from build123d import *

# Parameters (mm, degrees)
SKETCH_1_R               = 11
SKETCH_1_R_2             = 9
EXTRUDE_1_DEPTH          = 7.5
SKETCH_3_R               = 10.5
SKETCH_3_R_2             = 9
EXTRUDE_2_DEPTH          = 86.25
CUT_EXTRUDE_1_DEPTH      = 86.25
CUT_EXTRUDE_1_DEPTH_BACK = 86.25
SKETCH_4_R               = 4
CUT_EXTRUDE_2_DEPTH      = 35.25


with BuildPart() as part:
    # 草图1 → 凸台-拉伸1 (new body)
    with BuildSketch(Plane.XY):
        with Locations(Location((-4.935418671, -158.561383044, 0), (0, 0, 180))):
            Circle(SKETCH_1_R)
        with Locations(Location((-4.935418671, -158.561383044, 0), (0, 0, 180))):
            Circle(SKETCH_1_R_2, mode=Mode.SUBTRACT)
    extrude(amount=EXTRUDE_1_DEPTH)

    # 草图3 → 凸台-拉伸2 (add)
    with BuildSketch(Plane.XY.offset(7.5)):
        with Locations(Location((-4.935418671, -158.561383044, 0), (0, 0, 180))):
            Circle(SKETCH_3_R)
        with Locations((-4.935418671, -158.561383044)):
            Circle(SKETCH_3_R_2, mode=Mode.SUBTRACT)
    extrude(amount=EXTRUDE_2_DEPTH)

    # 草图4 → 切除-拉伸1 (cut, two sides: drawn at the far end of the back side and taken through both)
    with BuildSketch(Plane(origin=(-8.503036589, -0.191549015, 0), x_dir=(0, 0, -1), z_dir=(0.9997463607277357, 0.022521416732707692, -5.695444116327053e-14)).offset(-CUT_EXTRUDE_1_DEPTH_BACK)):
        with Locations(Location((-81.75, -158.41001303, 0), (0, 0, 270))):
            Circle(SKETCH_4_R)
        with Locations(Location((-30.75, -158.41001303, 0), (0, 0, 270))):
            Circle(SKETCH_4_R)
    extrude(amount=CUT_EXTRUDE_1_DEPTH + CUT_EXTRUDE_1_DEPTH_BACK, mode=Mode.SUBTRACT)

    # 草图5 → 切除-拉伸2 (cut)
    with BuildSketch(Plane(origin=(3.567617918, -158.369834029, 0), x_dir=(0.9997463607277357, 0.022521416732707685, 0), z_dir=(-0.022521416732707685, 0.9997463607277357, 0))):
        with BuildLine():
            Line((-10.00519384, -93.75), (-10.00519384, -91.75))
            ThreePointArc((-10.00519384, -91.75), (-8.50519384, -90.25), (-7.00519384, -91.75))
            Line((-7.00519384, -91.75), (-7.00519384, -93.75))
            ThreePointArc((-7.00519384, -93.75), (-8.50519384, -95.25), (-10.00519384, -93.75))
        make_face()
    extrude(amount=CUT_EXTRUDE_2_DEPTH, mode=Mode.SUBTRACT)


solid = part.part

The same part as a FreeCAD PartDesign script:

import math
import FreeCAD as App
import Part
import Sketcher

V = App.Vector
Q = App.Units.Quantity

doc = App.newDocument("Part")
params = doc.addObject("Spreadsheet::Sheet", "Params")
for row, (alias, value) in enumerate([
    ("sketch1_diameter", "22 mm"),
    ("sketch1_diameter2", "18 mm"),
    ("pad1_length", "7.5 mm"),
    ("sketch2_diameter", "21 mm"),
    ("sketch2_diameter2", "18 mm"),
    ("pad2_length", "86.25 mm"),
    ("sketch3_diameter", "8 mm"),
    ("sketch4_radius", "1.5 mm"),
    ("sketch4_height", "2 mm"),
    ("pocket2_length", "35.25 mm"),
], start=1):
    params.set(f"A{row}", alias)
    params.set(f"B{row}", "=" + value)
    params.setAlias(f"B{row}", alias)

body = doc.addObject("PartDesign::Body", "Body")

# Sketch on XY plane
sketch1 = body.newObject("Sketcher::SketchObject", "Sketch")
sketch1.AttachmentSupport = (doc.getObject("XY_Plane"), [""])
sketch1.MapMode = "FlatFace"
sketch1.addGeometry([
    Part.Circle(V(-4.935419, -158.561383, 0), V(0, 0, 1), 11),
    Part.Circle(V(-4.935419, -158.561383, 0), V(0, 0, 1), 9),
], False)
sketch1.addConstraint([
    Sketcher.Constraint("Coincident", 1, 3, 0, 3),
    Sketcher.Constraint("Diameter", 0, Q("22 mm")),
    Sketcher.Constraint("Diameter", 1, Q("18 mm")),
    Sketcher.Constraint("DistanceX", 0, 3, -1, 1, Q("4.935419 mm")),
    Sketcher.Constraint("DistanceY", 0, 3, -1, 1, Q("158.561383 mm")),
])
sketch1.setExpression("Constraints[1]", "Params.sketch1_diameter")
sketch1.setExpression("Constraints[2]", "Params.sketch1_diameter2")
pad1 = body.newObject("PartDesign::Pad", "Pad")
pad1.Profile = sketch1
pad1.setExpression("Length", "Params.pad1_length")

# Sketch on XY plane
sketch2 = body.newObject("Sketcher::SketchObject", "Sketch001")
sketch2.AttachmentSupport = (doc.getObject("XY_Plane"), [""])
sketch2.MapMode = "FlatFace"
sketch2.AttachmentOffset = App.Placement(V(0, 0, 7.5), App.Rotation())
sketch2.addGeometry([
    Part.Circle(V(-4.935419, -158.561383, 0), V(0, 0, 1), 10.5),
    Part.Circle(V(-4.935419, -158.561383, 0), V(0, 0, 1), 9),
], False)
sketch2.addConstraint([
    Sketcher.Constraint("Coincident", 1, 3, 0, 3),
    Sketcher.Constraint("Diameter", 0, Q("21 mm")),
    Sketcher.Constraint("Diameter", 1, Q("18 mm")),
    Sketcher.Constraint("DistanceX", 0, 3, -1, 1, Q("4.935419 mm")),
    Sketcher.Constraint("DistanceY", 0, 3, -1, 1, Q("158.561383 mm")),
])
sketch2.setExpression("Constraints[1]", "Params.sketch2_diameter")
sketch2.setExpression("Constraints[2]", "Params.sketch2_diameter2")
pad2 = body.newObject("PartDesign::Pad", "Pad001")
pad2.Profile = sketch2
pad2.setExpression("Length", "Params.pad2_length")

# Sketch on an angled plane
sketch3 = body.newObject("Sketcher::SketchObject", "Sketch002")
sketch3.Placement = App.Placement(V(-8.503037, -0.191549, 0), App.Rotation(V(0, 0, -1), V(-0.022521417, 0.999746361, 0), V(0.999746361, 0.022521417, 0), "ZXY"))
sketch3.addGeometry([
    Part.Circle(V(-81.75, -158.410013, 0), V(0, 0, 1), 4),
    Part.Circle(V(-30.75, -158.410013, 0), V(0, 0, 1), 4),
], False)
sketch3.addConstraint([
    Sketcher.Constraint("Equal", 0, 1),
    Sketcher.Constraint("Horizontal", 0, 3, 1, 3),
    Sketcher.Constraint("Diameter", 0, Q("8 mm")),
    Sketcher.Constraint("DistanceX", 0, 3, 1, 3, Q("51 mm")),
    Sketcher.Constraint("DistanceX", 0, 3, -1, 1, Q("81.75 mm")),
    Sketcher.Constraint("DistanceY", 0, 3, -1, 1, Q("158.410013 mm")),
])
sketch3.setExpression("Constraints[2]", "Params.sketch3_diameter")
pocket1 = body.newObject("PartDesign::Pocket", "Pocket")
pocket1.Profile = sketch3
pocket1.Type = "ThroughAll"
pocket1.Midplane = True

# Sketch on an angled plane
sketch4 = body.newObject("Sketcher::SketchObject", "Sketch003")
sketch4.Placement = App.Placement(V(3.567618, -158.369834, 0), App.Rotation(V(0.999746361, 0.022521417, 0), V(0, 0, -1.000000001), V(-0.022521417, 0.999746361, 0), "ZXY"))
sketch4.addGeometry([
    Part.LineSegment(V(-10.005194, -91.75, 0), V(-10.005194, -93.75, 0)),
    Part.ArcOfCircle(Part.Circle(V(-8.505194, -93.75, 0), V(0, 0, 1), 1.5), math.radians(180), math.radians(360)),
    Part.LineSegment(V(-7.005194, -93.75, 0), V(-7.005194, -91.75, 0)),
    Part.ArcOfCircle(Part.Circle(V(-8.505194, -91.75, 0), V(0, 0, 1), 1.5), math.radians(0), math.radians(180)),
], False)
sketch4.addConstraint([
    Sketcher.Constraint("Tangent", 0, 2, 1, 1),
    Sketcher.Constraint("Tangent", 1, 2, 2, 1),
    Sketcher.Constraint("Tangent", 2, 2, 3, 1),
    Sketcher.Constraint("Tangent", 3, 2, 0, 1),
    Sketcher.Constraint("Vertical", 0),
    Sketcher.Constraint("Vertical", 2),
    Sketcher.Constraint("Radius", 1, Q("1.5 mm")),
    Sketcher.Constraint("DistanceY", 0, 2, 0, 1, Q("2 mm")),
    Sketcher.Constraint("DistanceY", 1, 3, -1, 1, Q("93.75 mm")),
    Sketcher.Constraint("DistanceX", 1, 3, -1, 1, Q("8.505194 mm")),
])
sketch4.setExpression("Constraints[6]", "Params.sketch4_radius")
sketch4.setExpression("Constraints[7]", "Params.sketch4_height")
pocket2 = body.newObject("PartDesign::Pocket", "Pocket001")
pocket2.Profile = sketch4
pocket2.setExpression("Length", "Params.pocket2_length")
pocket2.Reversed = True

doc.recompute()
